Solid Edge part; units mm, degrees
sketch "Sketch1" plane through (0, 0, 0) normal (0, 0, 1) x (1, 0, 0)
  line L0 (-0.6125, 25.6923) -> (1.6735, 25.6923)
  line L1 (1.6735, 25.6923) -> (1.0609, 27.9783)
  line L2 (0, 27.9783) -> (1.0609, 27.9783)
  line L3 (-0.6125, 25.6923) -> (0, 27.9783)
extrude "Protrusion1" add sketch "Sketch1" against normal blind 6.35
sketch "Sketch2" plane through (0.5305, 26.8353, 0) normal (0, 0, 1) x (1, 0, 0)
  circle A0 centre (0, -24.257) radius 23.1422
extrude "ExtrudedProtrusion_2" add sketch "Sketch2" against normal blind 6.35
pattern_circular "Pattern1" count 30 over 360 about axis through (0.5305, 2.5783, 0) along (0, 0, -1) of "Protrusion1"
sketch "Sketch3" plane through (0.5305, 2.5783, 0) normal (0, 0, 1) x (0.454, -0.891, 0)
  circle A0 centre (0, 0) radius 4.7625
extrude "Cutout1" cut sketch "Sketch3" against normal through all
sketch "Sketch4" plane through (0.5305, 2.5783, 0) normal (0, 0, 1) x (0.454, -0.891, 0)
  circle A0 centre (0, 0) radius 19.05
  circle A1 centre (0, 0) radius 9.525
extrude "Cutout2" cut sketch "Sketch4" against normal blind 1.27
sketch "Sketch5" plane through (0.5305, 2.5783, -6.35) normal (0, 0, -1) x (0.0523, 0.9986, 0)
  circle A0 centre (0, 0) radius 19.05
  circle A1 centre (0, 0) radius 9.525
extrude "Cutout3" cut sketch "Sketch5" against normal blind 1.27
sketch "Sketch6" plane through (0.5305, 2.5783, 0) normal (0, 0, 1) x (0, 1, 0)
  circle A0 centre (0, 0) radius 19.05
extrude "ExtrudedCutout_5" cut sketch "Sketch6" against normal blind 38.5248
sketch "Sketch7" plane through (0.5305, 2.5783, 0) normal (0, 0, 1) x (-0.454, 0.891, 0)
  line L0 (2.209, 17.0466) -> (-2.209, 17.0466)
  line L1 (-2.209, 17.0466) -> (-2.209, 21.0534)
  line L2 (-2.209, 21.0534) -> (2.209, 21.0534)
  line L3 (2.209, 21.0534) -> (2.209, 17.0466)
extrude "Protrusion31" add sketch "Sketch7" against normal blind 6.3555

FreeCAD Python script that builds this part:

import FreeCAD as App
import Part
import Sketcher
Q = App.Units.Quantity

doc = App.newDocument("Part")
body = doc.addObject("PartDesign::Body", "Body")

sketch1 = body.newObject("Sketcher::SketchObject", "Sketch")
sketch1.AttachmentSupport = (doc.getObject("XY_Plane"), [""])
sketch1.MapMode = "FlatFace"
sketch1.addGeometry([
    Part.LineSegment(App.Vector(0, 28, 0), App.Vector(-0.6, 25.7, 0)),
    Part.LineSegment(App.Vector(-0.6, 25.7, 0), App.Vector(1.7, 25.7, 0)),
    Part.LineSegment(App.Vector(1.7, 25.7, 0), App.Vector(1.1, 28, 0)),
    Part.LineSegment(App.Vector(1.1, 28, 0), App.Vector(0, 28, 0)),
], False)
sketch1.addConstraint([
    Sketcher.Constraint("Coincident", 0, 2, 1, 1),
    Sketcher.Constraint("Coincident", 1, 2, 2, 1),
    Sketcher.Constraint("Coincident", 2, 2, 3, 1),
    Sketcher.Constraint("Coincident", 3, 2, 0, 1),
    Sketcher.Constraint("Horizontal", 1),
    Sketcher.Constraint("Horizontal", 3),
    Sketcher.Constraint("PointOnObject", 3, 2, -2),
    Sketcher.Constraint("Equal", 0, 2),
    Sketcher.Constraint("Angle", 0, Q("-104.9993 deg")),
    Sketcher.Constraint("DistanceX", 1, 1, 1, 2, Q("0.09 in")),
    Sketcher.Constraint("DistanceY", 1, 2, 2, 2, Q("0.09 in")),
    Sketcher.Constraint("DistanceY", -1, 1, 0, 2, Q("1.0115 in")),
])
pad1 = body.newObject("PartDesign::Pad", "Pad")
pad1.Profile = sketch1
pad1.Length = Q("0.25 in")
pad1.Reversed = True

sketch2 = body.newObject("Sketcher::SketchObject", "Sketch001")
sketch2.AttachmentSupport = (doc.getObject("XY_Plane"), [""])
sketch2.MapMode = "FlatFace"
sketch2.addGeometry(Part.Circle(App.Vector(1, 3, 0), App.Vector(0, 0, 1), 23), False)
sketch2.addConstraint([
    Sketcher.Constraint("Diameter", 0, 46.2844),
    Sketcher.Constraint("DistanceY", -1, 1, 0, 3, Q("0.1015 in")),
    Sketcher.Constraint("DistanceX", -1, 1, 0, 3, 0.5305),
])
pad2 = body.newObject("PartDesign::Pad", "Pad001")
pad2.Profile = sketch2
pad2.Length = Q("0.25 in")
pad2.Reversed = True
doc.recompute()

datumline = body.newObject("PartDesign::Line", "DatumLine")
datumline.Placement = App.Placement(App.Vector(0.5305, 2.5783, 0), App.Rotation(App.Vector(0, 0, 1), App.Vector(0, 0, 1)))
polarpattern = body.newObject("PartDesign::PolarPattern", "PolarPattern")
polarpattern.Originals = [pad1]
polarpattern.Axis = (datumline, [""])
polarpattern.Angle = 360
polarpattern.Occurrences = 30
body.Tip = polarpattern

sketch3 = body.newObject("Sketcher::SketchObject", "Sketch002")
sketch3.AttachmentSupport = (doc.getObject("XY_Plane"), [""])
sketch3.MapMode = "FlatFace"
sketch3.addGeometry(Part.Circle(App.Vector(0.5, 2.6, 0), App.Vector(0, 0, 1), 4.8), False)
sketch3.addConstraint([
    Sketcher.Constraint("Diameter", 0, Q("0.375 in")),
    Sketcher.Constraint("DistanceY", -1, 1, 0, 3, Q("0.1015 in")),
    Sketcher.Constraint("DistanceX", -1, 1, 0, 3, 0.5305),
])
pocket1 = body.newObject("PartDesign::Pocket", "Pocket")
pocket1.Profile = sketch3
pocket1.Type = "ThroughAll"

sketch4 = body.newObject("Sketcher::SketchObject", "Sketch003")
sketch4.AttachmentSupport = (doc.getObject("XY_Plane"), [""])
sketch4.MapMode = "FlatFace"
sketch4.addGeometry([
    Part.Circle(App.Vector(1, 3, 0), App.Vector(0, 0, 1), 19),
    Part.Circle(App.Vector(1, 3, 0), App.Vector(0, 0, 1), 10),
], False)
sketch4.addConstraint([
    Sketcher.Constraint("Coincident", 1, 3, 0, 3),
    Sketcher.Constraint("Diameter", 0, Q("1.5 in")),
    Sketcher.Constraint("Diameter", 1, Q("0.75 in")),
    Sketcher.Constraint("DistanceY", -1, 1, 0, 3, Q("0.1015 in")),
    Sketcher.Constraint("DistanceX", -1, 1, 0, 3, 0.5305),
])
pocket2 = body.newObject("PartDesign::Pocket", "Pocket001")
pocket2.Profile = sketch4
pocket2.Length = Q("0.05 in")

sketch5 = body.newObject("Sketcher::SketchObject", "Sketch004")
sketch5.AttachmentSupport = (doc.getObject("XY_Plane"), [""])
sketch5.MapMode = "FlatFace"
sketch5.AttachmentOffset = App.Placement(App.Vector(0, 0, -0.25 * 25.4), App.Rotation())
sketch5.addGeometry([
    Part.Circle(App.Vector(1, 3, 0), App.Vector(0, 0, 1), 19),
    Part.Circle(App.Vector(1, 3, 0), App.Vector(0, 0, 1), 10),
], False)
sketch5.addConstraint([
    Sketcher.Constraint("Coincident", 1, 3, 0, 3),
    Sketcher.Constraint("Diameter", 0, Q("1.5 in")),
    Sketcher.Constraint("Diameter", 1, Q("0.75 in")),
    Sketcher.Constraint("DistanceY", -1, 1, 0, 3, Q("0.1015 in")),
    Sketcher.Constraint("DistanceX", -1, 1, 0, 3, 0.5305),
])
pocket3 = body.newObject("PartDesign::Pocket", "Pocket002")
pocket3.Profile = sketch5
pocket3.Length = Q("0.05 in")
pocket3.Reversed = True

sketch6 = body.newObject("Sketcher::SketchObject", "Sketch005")
sketch6.AttachmentSupport = (doc.getObject("XY_Plane"), [""])
sketch6.MapMode = "FlatFace"
sketch6.addGeometry(Part.Circle(App.Vector(1, 3, 0), App.Vector(0, 0, 1), 19), False)
sketch6.addConstraint([
    Sketcher.Constraint("Diameter", 0, Q("1.5 in")),
    Sketcher.Constraint("DistanceY", -1, 1, 0, 3, Q("0.1015 in")),
    Sketcher.Constraint("DistanceX", -1, 1, 0, 3, 0.5305),
])
pocket4 = body.newObject("PartDesign::Pocket", "Pocket003")
pocket4.Profile = sketch6
pocket4.Length = 38.5248

sketch7 = body.newObject("Sketcher::SketchObject", "Sketch006")
sketch7.AttachmentSupport = (doc.getObject("XY_Plane"), [""])
sketch7.MapMode = "FlatFace"
sketch7.addGeometry([
    Part.LineSegment(App.Vector(-13.7, -7.1, 0), App.Vector(-15.7, -3.2, 0)),
    Part.LineSegment(App.Vector(-15.7, -3.2, 0), App.Vector(-19.2, -5, 0)),
    Part.LineSegment(App.Vector(-19.2, -5, 0), App.Vector(-17.2, -8.9, 0)),
    Part.LineSegment(App.Vector(-17.2, -8.9, 0), App.Vector(-13.7, -7.1, 0)),
], False)
sketch7.addConstraint([
    Sketcher.Constraint("Coincident", 0, 2, 1, 1),
    Sketcher.Constraint("Coincident", 1, 2, 2, 1),
    Sketcher.Constraint("Coincident", 2, 2, 3, 1),
    Sketcher.Constraint("Coincident", 3, 2, 0, 1),
    Sketcher.Constraint("Perpendicular", 0, 1),
    Sketcher.Constraint("Perpendicular", 1, 2),
    Sketcher.Constraint("Perpendicular", 2, 3),
    Sketcher.Constraint("Angle", 0, Q("117 deg")),
    Sketcher.Constraint("DistanceY", 1, 2, -1, 1, Q("0.1973 in")),
    Sketcher.Constraint("DistanceX", 3, 2, -1, 1, Q("0.5376 in")),
    Sketcher.Constraint("DistanceX", 2, 2, 0, 2, Q("0.0616 in")),
    Sketcher.Constraint("DistanceY", 2, 2, 0, 2, Q("0.2266 in")),
])
pad3 = body.newObject("PartDesign::Pad", "Pad002")
pad3.Profile = sketch7
pad3.Length = 6.3555
pad3.Reversed = True

doc.recompute()
